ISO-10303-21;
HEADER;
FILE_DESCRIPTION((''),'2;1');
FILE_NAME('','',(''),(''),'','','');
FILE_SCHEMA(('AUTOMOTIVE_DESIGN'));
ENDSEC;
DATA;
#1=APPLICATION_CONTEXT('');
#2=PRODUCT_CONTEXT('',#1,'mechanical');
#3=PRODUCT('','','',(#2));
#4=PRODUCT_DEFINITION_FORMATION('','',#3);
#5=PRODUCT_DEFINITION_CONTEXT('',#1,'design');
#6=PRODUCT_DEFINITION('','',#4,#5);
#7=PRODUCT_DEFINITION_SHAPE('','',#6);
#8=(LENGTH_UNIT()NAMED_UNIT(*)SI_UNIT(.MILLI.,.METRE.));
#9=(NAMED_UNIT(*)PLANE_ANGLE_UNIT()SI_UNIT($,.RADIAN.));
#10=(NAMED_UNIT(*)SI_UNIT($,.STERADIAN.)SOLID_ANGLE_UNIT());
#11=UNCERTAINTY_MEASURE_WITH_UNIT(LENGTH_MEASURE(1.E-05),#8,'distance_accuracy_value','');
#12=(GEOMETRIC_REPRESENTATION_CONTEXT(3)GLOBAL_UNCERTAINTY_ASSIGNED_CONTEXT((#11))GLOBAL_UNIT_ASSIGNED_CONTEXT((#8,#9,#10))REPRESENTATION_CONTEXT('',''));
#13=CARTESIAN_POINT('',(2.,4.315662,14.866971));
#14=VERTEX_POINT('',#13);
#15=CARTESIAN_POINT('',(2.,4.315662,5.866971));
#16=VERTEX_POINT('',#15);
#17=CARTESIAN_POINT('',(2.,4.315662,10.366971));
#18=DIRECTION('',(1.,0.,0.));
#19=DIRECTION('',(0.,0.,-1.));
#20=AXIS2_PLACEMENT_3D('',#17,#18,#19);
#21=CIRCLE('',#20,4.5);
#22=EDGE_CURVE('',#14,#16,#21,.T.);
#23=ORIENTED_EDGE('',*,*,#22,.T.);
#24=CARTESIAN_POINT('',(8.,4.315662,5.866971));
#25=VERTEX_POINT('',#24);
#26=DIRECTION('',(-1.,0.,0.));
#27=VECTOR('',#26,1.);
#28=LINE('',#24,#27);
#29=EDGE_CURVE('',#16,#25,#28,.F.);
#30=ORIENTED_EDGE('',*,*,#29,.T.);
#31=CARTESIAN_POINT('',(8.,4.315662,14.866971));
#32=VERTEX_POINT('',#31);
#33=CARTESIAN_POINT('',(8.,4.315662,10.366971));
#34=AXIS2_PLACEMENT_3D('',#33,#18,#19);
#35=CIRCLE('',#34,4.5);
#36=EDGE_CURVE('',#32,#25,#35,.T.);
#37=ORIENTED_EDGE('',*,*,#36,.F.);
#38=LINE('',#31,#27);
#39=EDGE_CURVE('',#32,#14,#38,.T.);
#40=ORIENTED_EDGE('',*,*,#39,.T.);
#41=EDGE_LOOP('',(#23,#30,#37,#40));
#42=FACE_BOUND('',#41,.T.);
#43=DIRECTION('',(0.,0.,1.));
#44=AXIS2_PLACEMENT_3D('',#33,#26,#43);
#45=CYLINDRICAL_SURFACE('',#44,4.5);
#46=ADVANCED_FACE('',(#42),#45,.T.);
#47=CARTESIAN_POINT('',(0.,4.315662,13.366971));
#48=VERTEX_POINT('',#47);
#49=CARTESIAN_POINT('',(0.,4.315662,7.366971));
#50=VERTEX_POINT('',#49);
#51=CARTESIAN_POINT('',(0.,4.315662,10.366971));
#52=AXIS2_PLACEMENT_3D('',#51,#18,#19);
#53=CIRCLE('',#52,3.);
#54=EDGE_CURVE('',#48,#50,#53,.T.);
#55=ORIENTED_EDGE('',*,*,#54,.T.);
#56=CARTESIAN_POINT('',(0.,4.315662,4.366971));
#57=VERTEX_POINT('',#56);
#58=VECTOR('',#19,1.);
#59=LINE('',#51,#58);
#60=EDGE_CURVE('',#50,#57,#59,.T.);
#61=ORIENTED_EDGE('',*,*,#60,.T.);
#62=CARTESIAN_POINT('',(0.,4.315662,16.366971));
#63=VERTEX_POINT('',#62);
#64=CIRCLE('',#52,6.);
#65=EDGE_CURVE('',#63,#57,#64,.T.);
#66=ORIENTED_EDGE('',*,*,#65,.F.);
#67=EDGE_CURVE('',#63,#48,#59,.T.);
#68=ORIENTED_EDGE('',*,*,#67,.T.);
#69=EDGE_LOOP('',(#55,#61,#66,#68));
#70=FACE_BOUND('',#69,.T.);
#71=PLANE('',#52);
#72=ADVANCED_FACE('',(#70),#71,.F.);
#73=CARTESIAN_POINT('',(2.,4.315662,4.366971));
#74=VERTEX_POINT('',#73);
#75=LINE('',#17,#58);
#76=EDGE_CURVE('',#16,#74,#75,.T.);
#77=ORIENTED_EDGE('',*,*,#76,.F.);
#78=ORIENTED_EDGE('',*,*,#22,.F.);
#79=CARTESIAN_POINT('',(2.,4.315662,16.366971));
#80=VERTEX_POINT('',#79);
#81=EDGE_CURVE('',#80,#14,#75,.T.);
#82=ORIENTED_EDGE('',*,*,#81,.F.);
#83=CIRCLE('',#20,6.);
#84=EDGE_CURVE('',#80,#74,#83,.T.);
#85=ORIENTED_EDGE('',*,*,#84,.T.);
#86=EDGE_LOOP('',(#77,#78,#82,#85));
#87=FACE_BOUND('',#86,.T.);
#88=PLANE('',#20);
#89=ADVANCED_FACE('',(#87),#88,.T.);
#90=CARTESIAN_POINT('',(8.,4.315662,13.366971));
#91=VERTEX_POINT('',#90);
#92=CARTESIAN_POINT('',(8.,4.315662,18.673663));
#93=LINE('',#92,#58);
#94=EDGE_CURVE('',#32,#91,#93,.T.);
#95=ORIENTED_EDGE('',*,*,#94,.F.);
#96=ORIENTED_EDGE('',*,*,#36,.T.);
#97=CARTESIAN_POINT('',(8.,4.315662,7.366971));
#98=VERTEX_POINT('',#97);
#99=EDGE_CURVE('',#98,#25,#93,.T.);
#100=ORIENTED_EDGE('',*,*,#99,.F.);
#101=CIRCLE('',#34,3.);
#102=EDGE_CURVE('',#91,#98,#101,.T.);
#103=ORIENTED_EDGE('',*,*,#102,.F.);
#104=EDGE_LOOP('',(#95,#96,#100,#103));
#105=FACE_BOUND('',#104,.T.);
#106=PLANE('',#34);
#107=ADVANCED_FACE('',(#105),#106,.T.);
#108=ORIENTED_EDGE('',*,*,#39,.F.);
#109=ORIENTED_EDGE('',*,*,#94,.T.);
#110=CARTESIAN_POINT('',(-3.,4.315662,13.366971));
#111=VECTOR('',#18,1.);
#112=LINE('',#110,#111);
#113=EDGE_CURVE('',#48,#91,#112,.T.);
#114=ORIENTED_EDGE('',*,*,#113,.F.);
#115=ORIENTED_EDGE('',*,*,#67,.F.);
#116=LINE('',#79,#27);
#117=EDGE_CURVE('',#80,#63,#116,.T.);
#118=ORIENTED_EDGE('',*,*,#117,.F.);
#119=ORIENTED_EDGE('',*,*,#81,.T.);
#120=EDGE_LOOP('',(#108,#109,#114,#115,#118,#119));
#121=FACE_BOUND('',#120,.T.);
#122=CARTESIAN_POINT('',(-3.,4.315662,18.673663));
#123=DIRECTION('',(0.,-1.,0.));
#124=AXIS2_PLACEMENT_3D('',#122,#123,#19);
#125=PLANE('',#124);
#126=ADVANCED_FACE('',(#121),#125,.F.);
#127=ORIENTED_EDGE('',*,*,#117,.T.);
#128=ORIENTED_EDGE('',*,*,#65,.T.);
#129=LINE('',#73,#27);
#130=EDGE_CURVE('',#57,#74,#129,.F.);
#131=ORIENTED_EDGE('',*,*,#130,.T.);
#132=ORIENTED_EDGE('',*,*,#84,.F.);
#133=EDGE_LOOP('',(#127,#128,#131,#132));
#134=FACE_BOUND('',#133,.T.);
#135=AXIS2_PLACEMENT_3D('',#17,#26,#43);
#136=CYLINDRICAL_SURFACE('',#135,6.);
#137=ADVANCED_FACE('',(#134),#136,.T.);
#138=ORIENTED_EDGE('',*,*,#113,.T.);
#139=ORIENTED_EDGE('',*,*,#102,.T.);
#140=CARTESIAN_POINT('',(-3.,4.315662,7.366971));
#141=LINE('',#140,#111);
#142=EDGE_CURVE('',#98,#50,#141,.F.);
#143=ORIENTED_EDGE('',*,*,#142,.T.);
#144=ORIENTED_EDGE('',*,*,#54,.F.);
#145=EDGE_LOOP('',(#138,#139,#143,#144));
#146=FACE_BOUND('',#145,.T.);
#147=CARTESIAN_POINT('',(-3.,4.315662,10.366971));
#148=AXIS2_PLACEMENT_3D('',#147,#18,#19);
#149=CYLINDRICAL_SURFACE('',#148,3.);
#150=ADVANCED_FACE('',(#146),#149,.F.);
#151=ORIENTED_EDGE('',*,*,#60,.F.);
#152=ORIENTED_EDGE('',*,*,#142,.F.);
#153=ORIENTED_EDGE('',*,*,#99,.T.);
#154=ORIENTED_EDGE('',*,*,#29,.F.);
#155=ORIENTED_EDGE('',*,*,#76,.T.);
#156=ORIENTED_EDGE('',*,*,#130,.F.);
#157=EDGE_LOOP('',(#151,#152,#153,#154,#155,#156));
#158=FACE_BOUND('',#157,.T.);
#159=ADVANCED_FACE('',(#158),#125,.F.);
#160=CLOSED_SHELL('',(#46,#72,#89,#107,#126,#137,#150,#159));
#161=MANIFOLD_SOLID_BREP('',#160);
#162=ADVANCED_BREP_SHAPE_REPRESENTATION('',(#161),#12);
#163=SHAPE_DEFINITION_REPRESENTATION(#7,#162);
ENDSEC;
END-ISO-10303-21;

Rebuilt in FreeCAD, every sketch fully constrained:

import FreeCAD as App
import Part
import Sketcher

V = App.Vector
Q = App.Units.Quantity


def add_polygon(sketch, points):
    """Adds a closed chain of lines whose ends are joined by coincident constraints."""
    first, n = sketch.GeometryCount, len(points)
    for a, b in zip(points, points[1:] + points[:1]):
        sketch.addGeometry(Part.LineSegment(App.Vector(*a, 0), App.Vector(*b, 0)), False)
    for i in range(n):
        sketch.addConstraint(Sketcher.Constraint("Coincident", first + i, 2, first + (i + 1) % n, 1))

doc = App.newDocument("Part")
body = doc.addObject("PartDesign::Body", "Body")

sketch1 = doc.addObject("Sketcher::SketchObject", "Sketch")
body.addObject(sketch1)
sketch1.AttachmentSupport = (doc.YZ_Plane, [""])
sketch1.MapMode = "FlatFace"
sketch1.addGeometry(Part.Circle(V(4, 10, 0), V(0, 0, 1), 6), False)
sketch1.addConstraint([
    Sketcher.Constraint("Diameter", 0, Q("12 mm")),
    Sketcher.Constraint("DistanceY", -1, 1, 0, 3, Q("10.366971 mm")),
    Sketcher.Constraint("DistanceX", -1, 1, 0, 3, Q("4.315662 mm")),
])
pad1 = doc.addObject("PartDesign::Pad", "Pad")
body.addObject(pad1)
pad1.Profile = sketch1
pad1.Length = 2

sketch2 = doc.addObject("Sketcher::SketchObject", "Sketch001")
body.addObject(sketch2)
sketch2.AttachmentSupport = (doc.YZ_Plane, [""])
sketch2.MapMode = "FlatFace"
sketch2.AttachmentOffset = App.Placement(V(0, 0, 2), App.Rotation())
sketch2.addGeometry(Part.Circle(V(4.3, 10.4, 0), V(0, 0, 1), 4.5), False)
sketch2.addConstraint([
    Sketcher.Constraint("Diameter", 0, Q("9 mm")),
    Sketcher.Constraint("DistanceY", -1, 1, 0, 3, Q("10.366971 mm")),
    Sketcher.Constraint("DistanceX", -1, 1, 0, 3, Q("4.315662 mm")),
])
pad2 = doc.addObject("PartDesign::Pad", "Pad001")
body.addObject(pad2)
pad2.Profile = sketch2
pad2.Length = 6

sketch3 = doc.addObject("Sketcher::SketchObject", "Sketch002")
body.addObject(sketch3)
sketch3.AttachmentSupport = (doc.YZ_Plane, [""])
sketch3.MapMode = "FlatFace"
sketch3.AttachmentOffset = App.Placement(V(0, 0, 8), App.Rotation())
sketch3.addGeometry(Part.Circle(V(4.3, 10.4, 0), V(0, 0, 1), 3), False)
sketch3.addConstraint([
    Sketcher.Constraint("Diameter", 0, Q("6 mm")),
    Sketcher.Constraint("DistanceY", -1, 1, 0, 3, Q("10.366971 mm")),
    Sketcher.Constraint("DistanceX", -1, 1, 0, 3, Q("4.315662 mm")),
])
pocket1 = doc.addObject("PartDesign::Pocket", "Pocket")
body.addObject(pocket1)
pocket1.Profile = sketch3
pocket1.Length = 11

sketch4 = doc.addObject("Sketcher::SketchObject", "Sketch003")
body.addObject(sketch4)
sketch4.AttachmentSupport = (doc.YZ_Plane, [""])
sketch4.MapMode = "FlatFace"
sketch4.AttachmentOffset = App.Placement(V(0, 0, 8), App.Rotation())
add_polygon(sketch4, [(13, 19), (4, 19), (4, 1), (13, 1)])
sketch4.addConstraint([
    Sketcher.Constraint("Horizontal", 0),
    Sketcher.Constraint("Vertical", 1),
    Sketcher.Constraint("Horizontal", 2),
    Sketcher.Constraint("Vertical", 3),
    Sketcher.Constraint("DistanceY", 1, 2, 1, 1, Q("17.898399 mm")),
    Sketcher.Constraint("DistanceX", 0, 2, 0, 1, Q("8.444373 mm")),
    Sketcher.Constraint("DistanceX", -1, 1, 0, 2, Q("4.315662 mm")),
    Sketcher.Constraint("DistanceY", -1, 1, 0, 2, Q("18.673663 mm")),
])
pocket2 = doc.addObject("PartDesign::Pocket", "Pocket001")
body.addObject(pocket2)
pocket2.Profile = sketch4
pocket2.Length = 11

doc.recompute()
